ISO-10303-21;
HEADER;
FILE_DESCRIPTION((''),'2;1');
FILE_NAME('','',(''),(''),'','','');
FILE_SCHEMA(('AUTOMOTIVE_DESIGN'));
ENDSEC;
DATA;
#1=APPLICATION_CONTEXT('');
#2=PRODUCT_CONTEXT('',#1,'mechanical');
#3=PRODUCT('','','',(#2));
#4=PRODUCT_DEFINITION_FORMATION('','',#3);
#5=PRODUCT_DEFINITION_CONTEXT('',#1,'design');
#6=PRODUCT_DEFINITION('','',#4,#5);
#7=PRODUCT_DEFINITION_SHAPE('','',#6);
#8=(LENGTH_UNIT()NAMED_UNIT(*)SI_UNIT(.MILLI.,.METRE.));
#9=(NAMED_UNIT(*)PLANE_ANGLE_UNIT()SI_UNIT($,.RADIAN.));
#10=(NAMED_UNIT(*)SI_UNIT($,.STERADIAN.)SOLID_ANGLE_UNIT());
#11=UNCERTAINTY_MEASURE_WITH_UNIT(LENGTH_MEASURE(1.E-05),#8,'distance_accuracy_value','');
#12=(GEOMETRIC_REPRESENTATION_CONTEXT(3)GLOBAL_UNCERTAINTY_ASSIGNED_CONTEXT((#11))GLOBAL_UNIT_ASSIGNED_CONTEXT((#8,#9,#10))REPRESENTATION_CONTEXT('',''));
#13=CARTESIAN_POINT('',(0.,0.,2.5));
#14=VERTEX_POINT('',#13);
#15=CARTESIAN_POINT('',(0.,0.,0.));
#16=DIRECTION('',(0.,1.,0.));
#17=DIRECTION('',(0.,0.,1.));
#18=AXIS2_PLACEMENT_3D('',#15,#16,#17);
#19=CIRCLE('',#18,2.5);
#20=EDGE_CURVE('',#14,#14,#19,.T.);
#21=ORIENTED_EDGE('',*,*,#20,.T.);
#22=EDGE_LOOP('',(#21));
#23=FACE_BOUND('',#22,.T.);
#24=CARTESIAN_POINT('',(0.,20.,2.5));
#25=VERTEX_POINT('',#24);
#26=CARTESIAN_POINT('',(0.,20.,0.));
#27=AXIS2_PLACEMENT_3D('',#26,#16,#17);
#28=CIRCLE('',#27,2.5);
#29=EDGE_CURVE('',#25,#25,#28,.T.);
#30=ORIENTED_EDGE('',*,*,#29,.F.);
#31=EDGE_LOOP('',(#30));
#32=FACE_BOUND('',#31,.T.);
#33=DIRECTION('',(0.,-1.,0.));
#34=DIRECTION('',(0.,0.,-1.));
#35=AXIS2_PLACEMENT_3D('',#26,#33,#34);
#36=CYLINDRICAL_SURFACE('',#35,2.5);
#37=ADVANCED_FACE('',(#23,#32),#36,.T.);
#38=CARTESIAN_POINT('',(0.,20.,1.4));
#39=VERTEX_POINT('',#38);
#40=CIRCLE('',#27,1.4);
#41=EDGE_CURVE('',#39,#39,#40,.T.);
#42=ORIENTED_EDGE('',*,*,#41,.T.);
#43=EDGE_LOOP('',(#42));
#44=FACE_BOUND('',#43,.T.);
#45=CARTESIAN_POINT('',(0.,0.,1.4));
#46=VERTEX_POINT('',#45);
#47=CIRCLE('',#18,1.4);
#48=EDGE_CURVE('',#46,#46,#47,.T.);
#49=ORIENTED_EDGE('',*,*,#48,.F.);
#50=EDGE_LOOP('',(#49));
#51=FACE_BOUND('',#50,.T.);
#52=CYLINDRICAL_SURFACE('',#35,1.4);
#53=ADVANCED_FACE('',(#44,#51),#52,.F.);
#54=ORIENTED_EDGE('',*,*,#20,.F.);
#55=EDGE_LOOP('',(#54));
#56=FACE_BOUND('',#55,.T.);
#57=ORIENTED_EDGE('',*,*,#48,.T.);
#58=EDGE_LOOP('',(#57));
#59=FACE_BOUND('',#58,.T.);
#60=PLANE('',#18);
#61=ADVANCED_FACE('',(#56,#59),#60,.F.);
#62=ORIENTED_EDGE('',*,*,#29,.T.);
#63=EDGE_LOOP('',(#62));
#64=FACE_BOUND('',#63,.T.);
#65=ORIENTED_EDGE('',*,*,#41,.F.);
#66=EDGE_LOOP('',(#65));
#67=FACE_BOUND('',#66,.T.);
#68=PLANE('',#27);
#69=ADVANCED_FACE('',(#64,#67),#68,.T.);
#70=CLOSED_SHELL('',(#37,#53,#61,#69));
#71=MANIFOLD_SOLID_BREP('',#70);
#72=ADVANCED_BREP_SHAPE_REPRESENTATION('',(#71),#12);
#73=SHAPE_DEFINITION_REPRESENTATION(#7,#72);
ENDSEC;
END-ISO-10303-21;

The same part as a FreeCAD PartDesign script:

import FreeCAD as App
import Part
import Sketcher

V = App.Vector

doc = App.newDocument("Part")
body = doc.addObject("PartDesign::Body", "Body")

sketch1 = body.newObject("Sketcher::SketchObject", "Sketch")
sketch1.AttachmentSupport = (doc.getObject("XZ_Plane"), [""])
sketch1.MapMode = "FlatFace"
sketch1.addGeometry(Part.Circle(V(0, 0, 0), V(0, 0, 1), 2.5), False)
sketch1.addGeometry(Part.Circle(V(0, 0, 0), V(0, 0, 1), 1.4), False)
sketch1.addConstraint(Sketcher.Constraint("Coincident", 0, 3, -1, 1))
sketch1.addConstraint(Sketcher.Constraint("Coincident", 1, 3, -1, 1))
sketch1.addConstraint(Sketcher.Constraint("Diameter", 0, 5.0))
sketch1.addConstraint(Sketcher.Constraint("Diameter", 1, 2.8))
pad1 = body.newObject("PartDesign::Pad", "Pad")
pad1.Profile = sketch1
pad1.Length = 20
pad1.Reversed = True

doc.recompute()
